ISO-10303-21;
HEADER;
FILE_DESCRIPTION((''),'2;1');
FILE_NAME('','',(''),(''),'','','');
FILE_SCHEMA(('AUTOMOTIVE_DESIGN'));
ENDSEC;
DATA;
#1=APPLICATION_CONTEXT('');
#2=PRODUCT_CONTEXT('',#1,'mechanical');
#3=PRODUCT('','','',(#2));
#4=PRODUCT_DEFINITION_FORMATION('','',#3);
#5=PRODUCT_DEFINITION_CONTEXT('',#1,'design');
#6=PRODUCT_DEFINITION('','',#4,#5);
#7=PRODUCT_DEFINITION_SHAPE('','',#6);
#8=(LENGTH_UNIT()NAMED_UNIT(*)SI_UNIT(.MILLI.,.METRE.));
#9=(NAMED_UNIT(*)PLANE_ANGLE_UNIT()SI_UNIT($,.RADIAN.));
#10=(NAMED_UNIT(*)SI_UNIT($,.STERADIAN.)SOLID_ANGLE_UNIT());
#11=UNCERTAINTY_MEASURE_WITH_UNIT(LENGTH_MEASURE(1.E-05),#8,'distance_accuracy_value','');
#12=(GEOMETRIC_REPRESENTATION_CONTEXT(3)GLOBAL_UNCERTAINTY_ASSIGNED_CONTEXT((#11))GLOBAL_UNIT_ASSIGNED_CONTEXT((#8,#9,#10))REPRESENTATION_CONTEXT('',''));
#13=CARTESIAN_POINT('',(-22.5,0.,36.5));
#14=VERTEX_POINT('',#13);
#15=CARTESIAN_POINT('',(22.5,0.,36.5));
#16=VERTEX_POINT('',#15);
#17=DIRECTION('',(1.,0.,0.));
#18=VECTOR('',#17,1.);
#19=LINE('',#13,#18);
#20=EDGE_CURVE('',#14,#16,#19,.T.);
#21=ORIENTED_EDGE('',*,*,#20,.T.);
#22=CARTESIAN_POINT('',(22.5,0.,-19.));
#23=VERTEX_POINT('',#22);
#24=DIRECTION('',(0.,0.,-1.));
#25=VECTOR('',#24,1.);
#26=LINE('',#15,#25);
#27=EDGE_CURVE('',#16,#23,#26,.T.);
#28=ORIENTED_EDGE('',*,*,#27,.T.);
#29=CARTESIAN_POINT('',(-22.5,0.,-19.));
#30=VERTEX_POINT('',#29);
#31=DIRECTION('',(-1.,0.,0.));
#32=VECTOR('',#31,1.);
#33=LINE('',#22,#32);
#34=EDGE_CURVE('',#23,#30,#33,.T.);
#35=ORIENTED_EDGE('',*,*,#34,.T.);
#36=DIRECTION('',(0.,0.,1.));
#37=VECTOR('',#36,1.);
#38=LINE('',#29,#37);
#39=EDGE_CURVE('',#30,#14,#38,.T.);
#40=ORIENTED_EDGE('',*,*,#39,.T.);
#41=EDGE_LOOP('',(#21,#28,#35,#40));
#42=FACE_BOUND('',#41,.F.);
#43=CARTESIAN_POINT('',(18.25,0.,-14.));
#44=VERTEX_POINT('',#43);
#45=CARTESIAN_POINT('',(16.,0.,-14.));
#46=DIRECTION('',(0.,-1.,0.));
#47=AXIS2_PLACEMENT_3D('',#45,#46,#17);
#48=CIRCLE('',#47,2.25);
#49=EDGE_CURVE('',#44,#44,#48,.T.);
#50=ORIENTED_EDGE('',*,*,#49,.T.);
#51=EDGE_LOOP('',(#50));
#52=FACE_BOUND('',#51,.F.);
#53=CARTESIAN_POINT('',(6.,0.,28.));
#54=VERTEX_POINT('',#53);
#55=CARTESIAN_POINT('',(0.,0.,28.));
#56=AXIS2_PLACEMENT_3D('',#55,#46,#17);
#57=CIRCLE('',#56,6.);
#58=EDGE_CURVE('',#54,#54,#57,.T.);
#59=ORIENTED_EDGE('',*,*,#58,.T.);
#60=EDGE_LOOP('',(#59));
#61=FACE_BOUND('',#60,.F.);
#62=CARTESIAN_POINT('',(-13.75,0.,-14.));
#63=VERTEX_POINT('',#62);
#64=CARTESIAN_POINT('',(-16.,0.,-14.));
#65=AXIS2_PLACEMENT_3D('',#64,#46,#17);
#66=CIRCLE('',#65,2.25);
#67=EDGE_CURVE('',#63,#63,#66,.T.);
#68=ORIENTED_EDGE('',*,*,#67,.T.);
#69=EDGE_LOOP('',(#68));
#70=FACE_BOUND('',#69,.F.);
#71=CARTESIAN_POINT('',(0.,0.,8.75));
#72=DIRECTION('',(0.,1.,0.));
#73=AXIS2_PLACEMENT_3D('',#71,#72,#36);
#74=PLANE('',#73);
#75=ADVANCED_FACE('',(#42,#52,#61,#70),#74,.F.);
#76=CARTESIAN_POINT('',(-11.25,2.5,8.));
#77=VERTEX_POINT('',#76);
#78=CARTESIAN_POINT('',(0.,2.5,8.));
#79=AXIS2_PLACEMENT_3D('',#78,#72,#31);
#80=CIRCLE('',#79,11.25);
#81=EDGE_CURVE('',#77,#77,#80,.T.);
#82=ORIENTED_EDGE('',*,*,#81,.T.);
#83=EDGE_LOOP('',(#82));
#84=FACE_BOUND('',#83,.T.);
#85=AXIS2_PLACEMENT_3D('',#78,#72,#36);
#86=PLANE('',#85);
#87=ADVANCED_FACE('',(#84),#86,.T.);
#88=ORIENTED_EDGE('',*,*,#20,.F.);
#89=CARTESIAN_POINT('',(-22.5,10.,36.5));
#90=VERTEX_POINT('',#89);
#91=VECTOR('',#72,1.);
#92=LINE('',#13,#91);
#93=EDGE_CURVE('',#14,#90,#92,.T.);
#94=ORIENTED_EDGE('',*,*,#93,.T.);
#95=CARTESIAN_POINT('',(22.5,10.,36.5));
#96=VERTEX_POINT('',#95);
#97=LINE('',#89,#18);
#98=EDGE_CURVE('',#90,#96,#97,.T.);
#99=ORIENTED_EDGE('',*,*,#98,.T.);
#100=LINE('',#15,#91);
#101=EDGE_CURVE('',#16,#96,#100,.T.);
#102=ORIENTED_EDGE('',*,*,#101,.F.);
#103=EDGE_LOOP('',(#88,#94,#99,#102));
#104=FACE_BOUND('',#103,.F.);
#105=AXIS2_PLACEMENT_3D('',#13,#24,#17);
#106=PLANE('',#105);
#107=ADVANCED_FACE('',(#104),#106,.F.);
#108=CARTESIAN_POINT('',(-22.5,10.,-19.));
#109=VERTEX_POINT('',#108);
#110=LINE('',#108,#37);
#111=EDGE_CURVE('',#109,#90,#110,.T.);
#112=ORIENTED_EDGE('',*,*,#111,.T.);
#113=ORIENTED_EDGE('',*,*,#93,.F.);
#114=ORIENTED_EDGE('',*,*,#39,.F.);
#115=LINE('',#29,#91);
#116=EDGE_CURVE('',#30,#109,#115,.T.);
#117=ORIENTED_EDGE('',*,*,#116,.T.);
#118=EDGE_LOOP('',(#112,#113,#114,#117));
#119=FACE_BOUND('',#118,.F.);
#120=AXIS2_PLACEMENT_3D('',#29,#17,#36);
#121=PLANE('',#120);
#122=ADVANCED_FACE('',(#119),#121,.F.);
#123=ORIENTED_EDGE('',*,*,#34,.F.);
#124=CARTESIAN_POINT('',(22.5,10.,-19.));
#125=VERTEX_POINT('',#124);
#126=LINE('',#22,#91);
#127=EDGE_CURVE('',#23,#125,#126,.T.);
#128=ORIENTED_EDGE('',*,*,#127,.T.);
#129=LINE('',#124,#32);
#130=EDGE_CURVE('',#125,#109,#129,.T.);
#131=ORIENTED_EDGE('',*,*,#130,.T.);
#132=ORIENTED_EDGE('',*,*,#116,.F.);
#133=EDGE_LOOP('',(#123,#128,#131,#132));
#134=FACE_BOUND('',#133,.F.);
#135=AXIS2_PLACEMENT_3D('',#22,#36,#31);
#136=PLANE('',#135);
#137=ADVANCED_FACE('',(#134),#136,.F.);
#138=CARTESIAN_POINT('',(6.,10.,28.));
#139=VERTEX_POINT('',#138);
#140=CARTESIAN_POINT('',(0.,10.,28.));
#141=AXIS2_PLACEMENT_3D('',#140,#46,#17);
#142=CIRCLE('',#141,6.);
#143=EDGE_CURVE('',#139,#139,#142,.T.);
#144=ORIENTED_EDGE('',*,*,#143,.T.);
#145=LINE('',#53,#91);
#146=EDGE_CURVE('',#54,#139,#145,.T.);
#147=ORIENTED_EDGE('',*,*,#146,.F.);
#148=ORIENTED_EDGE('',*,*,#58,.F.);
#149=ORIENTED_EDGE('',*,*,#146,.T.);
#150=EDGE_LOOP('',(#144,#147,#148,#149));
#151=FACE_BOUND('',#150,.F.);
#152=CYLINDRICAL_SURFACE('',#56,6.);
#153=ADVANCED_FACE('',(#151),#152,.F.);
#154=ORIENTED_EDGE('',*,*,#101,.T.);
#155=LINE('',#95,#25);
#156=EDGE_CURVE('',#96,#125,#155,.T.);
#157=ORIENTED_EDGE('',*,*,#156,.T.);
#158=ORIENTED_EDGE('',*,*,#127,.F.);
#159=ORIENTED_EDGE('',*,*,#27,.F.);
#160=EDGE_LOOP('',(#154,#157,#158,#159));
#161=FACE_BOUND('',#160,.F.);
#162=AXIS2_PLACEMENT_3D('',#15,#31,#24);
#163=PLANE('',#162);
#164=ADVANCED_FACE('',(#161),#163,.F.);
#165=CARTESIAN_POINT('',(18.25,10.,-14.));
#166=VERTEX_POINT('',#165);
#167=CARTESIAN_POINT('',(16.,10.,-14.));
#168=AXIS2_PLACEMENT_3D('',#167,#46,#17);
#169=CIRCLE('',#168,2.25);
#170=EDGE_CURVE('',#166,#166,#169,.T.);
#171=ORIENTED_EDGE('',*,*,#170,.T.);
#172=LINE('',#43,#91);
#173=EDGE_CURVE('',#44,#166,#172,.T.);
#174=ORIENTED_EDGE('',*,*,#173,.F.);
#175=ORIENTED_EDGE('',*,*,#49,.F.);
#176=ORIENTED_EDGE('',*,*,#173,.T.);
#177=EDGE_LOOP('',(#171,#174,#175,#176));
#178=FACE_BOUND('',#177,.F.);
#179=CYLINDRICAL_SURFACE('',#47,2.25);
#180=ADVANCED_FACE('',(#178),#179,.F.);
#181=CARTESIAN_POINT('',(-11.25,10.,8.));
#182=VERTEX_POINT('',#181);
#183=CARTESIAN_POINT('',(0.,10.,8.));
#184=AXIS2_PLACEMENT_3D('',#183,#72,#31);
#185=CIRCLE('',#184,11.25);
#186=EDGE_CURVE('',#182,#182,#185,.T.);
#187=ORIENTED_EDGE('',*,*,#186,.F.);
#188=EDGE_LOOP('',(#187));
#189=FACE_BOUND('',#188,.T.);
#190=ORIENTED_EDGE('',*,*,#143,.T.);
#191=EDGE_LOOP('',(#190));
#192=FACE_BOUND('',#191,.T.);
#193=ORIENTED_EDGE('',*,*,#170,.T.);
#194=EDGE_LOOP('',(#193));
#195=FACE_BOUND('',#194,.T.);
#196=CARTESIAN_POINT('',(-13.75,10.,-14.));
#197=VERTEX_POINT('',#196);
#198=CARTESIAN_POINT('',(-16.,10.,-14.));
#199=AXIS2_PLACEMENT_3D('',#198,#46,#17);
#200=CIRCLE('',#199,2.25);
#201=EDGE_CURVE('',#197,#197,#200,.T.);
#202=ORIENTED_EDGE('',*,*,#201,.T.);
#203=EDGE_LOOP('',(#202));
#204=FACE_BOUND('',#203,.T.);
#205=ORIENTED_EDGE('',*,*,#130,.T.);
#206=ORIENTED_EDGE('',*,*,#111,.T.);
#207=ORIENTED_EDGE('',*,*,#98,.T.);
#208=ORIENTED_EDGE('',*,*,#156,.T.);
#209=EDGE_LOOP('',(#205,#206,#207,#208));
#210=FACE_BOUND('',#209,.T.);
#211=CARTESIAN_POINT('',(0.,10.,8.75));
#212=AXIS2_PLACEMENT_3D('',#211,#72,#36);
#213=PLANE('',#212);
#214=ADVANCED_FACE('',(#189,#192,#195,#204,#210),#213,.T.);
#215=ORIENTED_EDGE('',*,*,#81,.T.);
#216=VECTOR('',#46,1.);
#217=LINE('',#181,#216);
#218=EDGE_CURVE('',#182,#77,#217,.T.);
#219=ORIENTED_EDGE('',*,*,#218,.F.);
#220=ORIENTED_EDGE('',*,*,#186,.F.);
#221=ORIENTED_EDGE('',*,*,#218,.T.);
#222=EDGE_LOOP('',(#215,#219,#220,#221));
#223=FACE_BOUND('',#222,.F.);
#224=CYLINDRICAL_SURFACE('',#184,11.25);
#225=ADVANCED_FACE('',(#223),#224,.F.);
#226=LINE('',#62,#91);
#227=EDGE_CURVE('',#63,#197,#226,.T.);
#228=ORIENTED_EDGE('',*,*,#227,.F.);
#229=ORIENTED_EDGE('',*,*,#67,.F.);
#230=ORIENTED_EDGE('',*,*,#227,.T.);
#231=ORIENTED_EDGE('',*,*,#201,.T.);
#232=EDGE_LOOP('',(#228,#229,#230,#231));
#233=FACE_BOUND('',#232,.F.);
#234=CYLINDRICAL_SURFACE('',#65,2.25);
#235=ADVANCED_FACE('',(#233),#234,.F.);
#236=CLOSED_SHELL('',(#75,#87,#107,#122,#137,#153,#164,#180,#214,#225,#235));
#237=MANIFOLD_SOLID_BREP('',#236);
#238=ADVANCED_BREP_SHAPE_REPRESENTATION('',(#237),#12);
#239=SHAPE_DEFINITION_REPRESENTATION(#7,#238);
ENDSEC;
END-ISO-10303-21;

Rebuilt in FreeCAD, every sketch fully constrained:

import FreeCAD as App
import Part
import Sketcher
from FreeCAD import Vector
Q = App.Units.Quantity

doc = App.newDocument("Part")
body = doc.addObject("PartDesign::Body", "Body")

# Sketch on XZ plane
sketch1 = body.newObject("Sketcher::SketchObject", "Sketch")
sketch1.AttachmentSupport = (doc.getObject("XZ_Plane"), [""])
sketch1.MapMode = "FlatFace"
sketch1.addGeometry([
    Part.LineSegment(Vector(22.5, -19, 0), Vector(22.5, 36.5, 0)),  # 0
    Part.LineSegment(Vector(22.5, 36.5, 0), Vector(-22.5, 36.5, 0)),  # 1
    Part.LineSegment(Vector(-22.5, 36.5, 0), Vector(-22.5, -19, 0)),  # 2
    Part.LineSegment(Vector(-22.5, -19, 0), Vector(22.5, -19, 0)),  # 3
    Part.Circle(Vector(0, 8, 0), Vector(0, 0, 1), 4.6),  # 4
    Part.Circle(Vector(0, 28, 0), Vector(0, 0, 1), 6),  # 5
], False)
sketch1.addConstraint([
    Sketcher.Constraint("Coincident", 0, 2, 1, 1),
    Sketcher.Constraint("Coincident", 1, 2, 2, 1),
    Sketcher.Constraint("Coincident", 2, 2, 3, 1),
    Sketcher.Constraint("Coincident", 3, 2, 0, 1),
    Sketcher.Constraint("Vertical", 0),
    Sketcher.Constraint("Horizontal", 1),
    Sketcher.Constraint("Vertical", 2),
    Sketcher.Constraint("Horizontal", 3),
    Sketcher.Constraint("PointOnObject", 4, 3, -2),
    Sketcher.Constraint("PointOnObject", 5, 3, -2),
    Sketcher.Constraint("Diameter", 5, Q("12 mm")),
    Sketcher.Constraint("Diameter", 4, Q("9.2 mm")),
    Sketcher.Constraint("DistanceX", 1, 2, 1, 1, Q("45 mm")),
    Sketcher.Constraint("DistanceY", 0, 1, 0, 2, Q("55.5 mm")),
    Sketcher.Constraint("DistanceY", -1, 1, 4, 3, Q("8 mm")),
    Sketcher.Constraint("DistanceY", -1, 1, 5, 3, Q("28 mm")),
    Sketcher.Constraint("DistanceY", 2, 2, -1, 1, Q("19 mm")),
    Sketcher.Constraint("DistanceX", -1, 1, 0, 2, Q("22.5 mm")),
])
pad1 = body.newObject("PartDesign::Pad", "Pad")
pad1.Profile = sketch1
pad1.Length = 10
pad1.Reversed = True

# Sketch on XZ plane
sketch2 = body.newObject("Sketcher::SketchObject", "Sketch001")
sketch2.AttachmentSupport = (doc.getObject("XZ_Plane"), [""])
sketch2.MapMode = "FlatFace"
sketch2.AttachmentOffset = App.Placement(Vector(0, 0, -10), App.Rotation())
sketch2.addGeometry(Part.Circle(Vector(0, 8, 0), Vector(0, 0, 1), 11), False)
sketch2.addConstraint([
    Sketcher.Constraint("PointOnObject", 0, 3, -2),
    Sketcher.Constraint("Diameter", 0, Q("22.5 mm")),
    Sketcher.Constraint("DistanceY", -1, 1, 0, 3, Q("8 mm")),
])
pocket1 = body.newObject("PartDesign::Pocket", "Pocket")
pocket1.Profile = sketch2
pocket1.Length = 7.5
pocket1.Reversed = True

# Sketch on XZ plane
sketch3 = body.newObject("Sketcher::SketchObject", "Sketch002")
sketch3.AttachmentSupport = (doc.getObject("XZ_Plane"), [""])
sketch3.MapMode = "FlatFace"
sketch3.AttachmentOffset = App.Placement(Vector(0, 0, -2.5), App.Rotation())
sketch3.addGeometry(Part.Circle(Vector(0, 8, 0), Vector(0, 0, 1), 4.6), False)
sketch3.addConstraint([
    Sketcher.Constraint("PointOnObject", 0, 3, -2),
    Sketcher.Constraint("Diameter", 0, Q("9.2 mm")),
    Sketcher.Constraint("DistanceY", -1, 1, 0, 3, Q("8 mm")),
])
pad2 = body.newObject("PartDesign::Pad", "Pad001")
pad2.Profile = sketch3
pad2.Length = 2.5

# Sketch on XZ plane
sketch4 = body.newObject("Sketcher::SketchObject", "Sketch003")
sketch4.AttachmentSupport = (doc.getObject("XZ_Plane"), [""])
sketch4.MapMode = "FlatFace"
sketch4.addGeometry([
    Part.Circle(Vector(-16, -14, 0), Vector(0, 0, 1), 2.2),
    Part.Circle(Vector(16, -14, 0), Vector(0, 0, 1), 2.2),
], False)
sketch4.addConstraint([
    Sketcher.Constraint("Equal", 0, 1),
    Sketcher.Constraint("Symmetric", 0, 3, 1, 3, -2),
    Sketcher.Constraint("Diameter", 0, Q("4.5 mm")),
    Sketcher.Constraint("DistanceX", 0, 3, -1, 1, Q("16 mm")),
    Sketcher.Constraint("DistanceY", 0, 3, -1, 1, Q("14 mm")),
])
pocket2 = body.newObject("PartDesign::Pocket", "Pocket001")
pocket2.Profile = sketch4
pocket2.Type = "UpToFirst"

doc.recompute()
